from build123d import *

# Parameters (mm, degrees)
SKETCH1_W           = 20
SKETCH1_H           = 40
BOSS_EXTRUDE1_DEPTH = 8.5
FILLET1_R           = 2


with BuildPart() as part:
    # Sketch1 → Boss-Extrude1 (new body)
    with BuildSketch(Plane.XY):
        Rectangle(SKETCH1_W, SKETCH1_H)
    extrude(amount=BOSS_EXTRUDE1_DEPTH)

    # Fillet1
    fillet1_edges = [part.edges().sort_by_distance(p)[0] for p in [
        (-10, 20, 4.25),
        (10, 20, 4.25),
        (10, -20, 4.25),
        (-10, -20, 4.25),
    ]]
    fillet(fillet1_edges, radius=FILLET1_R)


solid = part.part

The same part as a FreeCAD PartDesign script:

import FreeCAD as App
import Part
import Sketcher


def edges_at(feature, points):
    """Names of the edges that pass closest to the given points."""
    edges = feature.Shape.Edges
    near = lambda p: min(range(len(edges)), key=lambda i: edges[i].distToShape(Part.Vertex(*p))[0])
    return sorted({f"Edge{near(p) + 1}" for p in points})

doc = App.newDocument("Part")
body = doc.addObject("PartDesign::Body", "Body")

# Sketch on XY plane
sketch1 = body.newObject("Sketcher::SketchObject", "Sketch")
sketch1.AttachmentSupport = (doc.getObject("XY_Plane"), [""])
sketch1.MapMode = "FlatFace"
sketch1.addGeometry(Part.LineSegment(App.Vector(-10, 20, 0), App.Vector(-10, -20, 0)), False)
sketch1.addGeometry(Part.LineSegment(App.Vector(-10, -20, 0), App.Vector(10, -20, 0)), False)
sketch1.addGeometry(Part.LineSegment(App.Vector(10, -20, 0), App.Vector(10, 20, 0)), False)
sketch1.addGeometry(Part.LineSegment(App.Vector(10, 20, 0), App.Vector(-10, 20, 0)), False)
sketch1.addConstraint(Sketcher.Constraint("Coincident", 0, 2, 1, 1))
sketch1.addConstraint(Sketcher.Constraint("Coincident", 1, 2, 2, 1))
sketch1.addConstraint(Sketcher.Constraint("Coincident", 2, 2, 3, 1))
sketch1.addConstraint(Sketcher.Constraint("Coincident", 3, 2, 0, 1))
sketch1.addConstraint(Sketcher.Constraint("Vertical", 0))
sketch1.addConstraint(Sketcher.Constraint("Horizontal", 1))
sketch1.addConstraint(Sketcher.Constraint("Vertical", 2))
sketch1.addConstraint(Sketcher.Constraint("Horizontal", 3))
sketch1.addConstraint(Sketcher.Constraint("Symmetric", 0, 2, 2, 2, -1, 1))
sketch1.addConstraint(Sketcher.Constraint("DistanceX", 1, 1, 1, 2, 20.0))
sketch1.addConstraint(Sketcher.Constraint("DistanceY", 0, 2, 0, 1, 40.0))
pad1 = body.newObject("PartDesign::Pad", "Pad")
pad1.Profile = sketch1
pad1.Length = 8.5
doc.recompute()

fillet = body.newObject("PartDesign::Fillet", "Fillet")
fillet.Base = (pad1, edges_at(pad1, [
    (-10, 20, 4.25),
    (10, 20, 4.25),
    (10, -20, 4.25),
    (-10, -20, 4.25),
]))
fillet.Radius = 2

doc.recompute()
